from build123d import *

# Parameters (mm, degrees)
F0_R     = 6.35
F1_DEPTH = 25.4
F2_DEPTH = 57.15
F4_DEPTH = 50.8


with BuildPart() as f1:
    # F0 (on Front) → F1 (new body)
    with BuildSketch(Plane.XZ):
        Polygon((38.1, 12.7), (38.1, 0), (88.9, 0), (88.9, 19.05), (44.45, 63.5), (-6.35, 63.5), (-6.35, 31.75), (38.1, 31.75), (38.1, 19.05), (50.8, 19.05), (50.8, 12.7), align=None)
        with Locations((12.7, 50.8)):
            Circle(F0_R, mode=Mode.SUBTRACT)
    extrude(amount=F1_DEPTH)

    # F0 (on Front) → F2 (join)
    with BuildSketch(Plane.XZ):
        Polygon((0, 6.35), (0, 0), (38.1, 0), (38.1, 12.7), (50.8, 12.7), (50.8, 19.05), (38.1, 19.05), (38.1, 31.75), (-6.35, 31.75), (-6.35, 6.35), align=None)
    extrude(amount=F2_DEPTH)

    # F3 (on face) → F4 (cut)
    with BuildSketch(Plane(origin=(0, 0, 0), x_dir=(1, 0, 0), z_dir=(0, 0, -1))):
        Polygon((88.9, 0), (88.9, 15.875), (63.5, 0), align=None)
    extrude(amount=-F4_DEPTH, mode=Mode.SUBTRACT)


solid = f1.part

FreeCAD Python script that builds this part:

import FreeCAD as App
import Part
import Sketcher

V = App.Vector
Q = App.Units.Quantity

doc = App.newDocument("Part")
body = doc.addObject("PartDesign::Body", "Body")

# Sketch on XZ plane
sketch1 = body.newObject("Sketcher::SketchObject", "Sketch")
sketch1.AttachmentSupport = (doc.getObject("XZ_Plane"), [""])
sketch1.MapMode = "FlatFace"
sketch1.addGeometry([
    Part.LineSegment(V(38.1, 12.7, 0), V(38.1, 0, 0)),  # 0
    Part.LineSegment(V(38.1, 0, 0), V(88.9, 0, 0)),  # 1
    Part.LineSegment(V(88.9, 0, 0), V(88.9, 19.05, 0)),  # 2
    Part.LineSegment(V(88.9, 19.05, 0), V(44.45, 63.5, 0)),  # 3
    Part.LineSegment(V(44.45, 63.5, 0), V(-6.35, 63.5, 0)),  # 4
    Part.LineSegment(V(-6.35, 63.5, 0), V(-6.35, 31.75, 0)),  # 5
    Part.LineSegment(V(-6.35, 31.75, 0), V(38.1, 31.75, 0)),  # 6
    Part.LineSegment(V(38.1, 31.75, 0), V(38.1, 19.05, 0)),  # 7
    Part.LineSegment(V(38.1, 19.05, 0), V(50.8, 19.05, 0)),  # 8
    Part.LineSegment(V(50.8, 19.05, 0), V(50.8, 12.7, 0)),  # 9
    Part.LineSegment(V(50.8, 12.7, 0), V(38.1, 12.7, 0)),  # 10
    Part.Circle(V(12.7, 50.8, 0), V(0, 0, 1), 6.35),  # 11
], False)
sketch1.addConstraint([
    Sketcher.Constraint("Coincident", 0, 2, 1, 1),
    Sketcher.Constraint("Coincident", 1, 2, 2, 1),
    Sketcher.Constraint("Coincident", 2, 2, 3, 1),
    Sketcher.Constraint("Coincident", 3, 2, 4, 1),
    Sketcher.Constraint("Coincident", 4, 2, 5, 1),
    Sketcher.Constraint("Coincident", 5, 2, 6, 1),
    Sketcher.Constraint("Coincident", 6, 2, 7, 1),
    Sketcher.Constraint("Coincident", 7, 2, 8, 1),
    Sketcher.Constraint("Coincident", 8, 2, 9, 1),
    Sketcher.Constraint("Coincident", 9, 2, 10, 1),
    Sketcher.Constraint("Coincident", 10, 2, 0, 1),
    Sketcher.Constraint("Vertical", 0),
    Sketcher.Constraint("Horizontal", 1),
    Sketcher.Constraint("Vertical", 2),
    Sketcher.Constraint("Horizontal", 4),
    Sketcher.Constraint("Vertical", 5),
    Sketcher.Constraint("Horizontal", 6),
    Sketcher.Constraint("Vertical", 7),
    Sketcher.Constraint("Horizontal", 8),
    Sketcher.Constraint("Vertical", 9),
    Sketcher.Constraint("Horizontal", 10),
    Sketcher.Constraint("PointOnObject", 0, 2, -1),
    Sketcher.Constraint("Horizontal", 2, 2, 7, 2),
    Sketcher.Constraint("Vertical", 0, 2, 6, 2),
    Sketcher.Constraint("Equal", 1, 4),
    Sketcher.Constraint("Equal", 10, 0),
    Sketcher.Constraint("Equal", 0, 7),
    Sketcher.Constraint("Diameter", 11, Q("0.5 in")),
    Sketcher.Constraint("DistanceX", 1, 1, 1, 2, Q("2 in")),
    Sketcher.Constraint("DistanceX", 8, 1, 8, 2, Q("0.5 in")),
    Sketcher.Constraint("DistanceY", -1, 1, 11, 3, Q("2 in")),
    Sketcher.Constraint("DistanceX", -1, 1, 8, 2, Q("2 in")),
    Sketcher.Constraint("Angle", 3, Q("135 deg")),
    Sketcher.Constraint("DistanceX", 11, 3, 0, 2, Q("1 in")),
    Sketcher.Constraint("DistanceX", 6, 1, 6, 2, Q("1.75 in")),
    Sketcher.Constraint("DistanceY", 2, 1, 2, 2, Q("0.75 in")),
])
pad1 = body.newObject("PartDesign::Pad", "Pad")
pad1.Profile = sketch1
pad1.Length = Q("1 in")

# Sketch on XZ plane
sketch2 = body.newObject("Sketcher::SketchObject", "Sketch001")
sketch2.AttachmentSupport = (doc.getObject("XZ_Plane"), [""])
sketch2.MapMode = "FlatFace"
sketch2.addGeometry([
    Part.LineSegment(V(0, 6.35, 0), V(0, 0, 0)),  # 0
    Part.LineSegment(V(0, 0, 0), V(38.1, 0, 0)),  # 1
    Part.LineSegment(V(38.1, 0, 0), V(38.1, 12.7, 0)),  # 2
    Part.LineSegment(V(38.1, 12.7, 0), V(50.8, 12.7, 0)),  # 3
    Part.LineSegment(V(50.8, 12.7, 0), V(50.8, 19.05, 0)),  # 4
    Part.LineSegment(V(50.8, 19.05, 0), V(38.1, 19.05, 0)),  # 5
    Part.LineSegment(V(38.1, 19.05, 0), V(38.1, 31.75, 0)),  # 6
    Part.LineSegment(V(38.1, 31.75, 0), V(-6.35, 31.75, 0)),  # 7
    Part.LineSegment(V(-6.35, 31.75, 0), V(-6.35, 6.35, 0)),  # 8
    Part.LineSegment(V(-6.35, 6.35, 0), V(0, 6.35, 0)),  # 9
], False)
sketch2.addConstraint([
    Sketcher.Constraint("Coincident", 0, 2, 1, 1),
    Sketcher.Constraint("Coincident", 1, 2, 2, 1),
    Sketcher.Constraint("Coincident", 2, 2, 3, 1),
    Sketcher.Constraint("Coincident", 3, 2, 4, 1),
    Sketcher.Constraint("Coincident", 4, 2, 5, 1),
    Sketcher.Constraint("Coincident", 5, 2, 6, 1),
    Sketcher.Constraint("Coincident", 6, 2, 7, 1),
    Sketcher.Constraint("Coincident", 7, 2, 8, 1),
    Sketcher.Constraint("Coincident", 8, 2, 9, 1),
    Sketcher.Constraint("Coincident", 9, 2, 0, 1),
    Sketcher.Constraint("Vertical", 0),
    Sketcher.Constraint("Horizontal", 1),
    Sketcher.Constraint("Vertical", 2),
    Sketcher.Constraint("Horizontal", 3),
    Sketcher.Constraint("Vertical", 4),
    Sketcher.Constraint("Horizontal", 5),
    Sketcher.Constraint("Vertical", 6),
    Sketcher.Constraint("Horizontal", 7),
    Sketcher.Constraint("Vertical", 8),
    Sketcher.Constraint("Horizontal", 9),
    Sketcher.Constraint("Coincident", 0, 2, -1, 1),
    Sketcher.Constraint("Vertical", 2, 2, 5, 2),
    Sketcher.Constraint("Equal", 9, 0),
    Sketcher.Constraint("Equal", 5, 2),
    Sketcher.Constraint("Equal", 0, 4),
    Sketcher.Constraint("Equal", 2, 6),
    Sketcher.Constraint("DistanceY", 8, 2, 8, 1, Q("1 in")),
    Sketcher.Constraint("DistanceX", 1, 1, 1, 2, Q("1.5 in")),
    Sketcher.Constraint("DistanceX", 7, 2, 7, 1, Q("1.75 in")),
])
pad2 = body.newObject("PartDesign::Pad", "Pad001")
pad2.Profile = sketch2
pad2.Length = Q("2.25 in")

# Sketch on XY plane
sketch3 = body.newObject("Sketcher::SketchObject", "Sketch002")
sketch3.AttachmentSupport = (doc.getObject("XY_Plane"), [""])
sketch3.MapMode = "FlatFace"
sketch3.addGeometry([
    Part.LineSegment(V(88.9, 0, 0), V(88.9, -15.875, 0)),
    Part.LineSegment(V(88.9, -15.875, 0), V(63.5, 0, 0)),
    Part.LineSegment(V(63.5, 0, 0), V(88.9, 0, 0)),
], False)
sketch3.addConstraint([
    Sketcher.Constraint("Coincident", 0, 2, 1, 1),
    Sketcher.Constraint("Coincident", 1, 2, 2, 1),
    Sketcher.Constraint("Coincident", 2, 2, 0, 1),
    Sketcher.Constraint("Vertical", 0),
    Sketcher.Constraint("Horizontal", 2),
    Sketcher.Constraint("PointOnObject", 1, 2, -1),
    Sketcher.Constraint("DistanceX", 2, 1, 2, 2, Q("1 in")),
    Sketcher.Constraint("DistanceX", -1, 1, 0, 2, Q("3.5 in")),
    Sketcher.Constraint("DistanceY", 0, 2, 0, 1, Q("0.625 in")),
])
pocket1 = body.newObject("PartDesign::Pocket", "Pocket")
pocket1.Profile = sketch3
pocket1.Length = Q("2 in")
pocket1.Reversed = True

doc.recompute()
